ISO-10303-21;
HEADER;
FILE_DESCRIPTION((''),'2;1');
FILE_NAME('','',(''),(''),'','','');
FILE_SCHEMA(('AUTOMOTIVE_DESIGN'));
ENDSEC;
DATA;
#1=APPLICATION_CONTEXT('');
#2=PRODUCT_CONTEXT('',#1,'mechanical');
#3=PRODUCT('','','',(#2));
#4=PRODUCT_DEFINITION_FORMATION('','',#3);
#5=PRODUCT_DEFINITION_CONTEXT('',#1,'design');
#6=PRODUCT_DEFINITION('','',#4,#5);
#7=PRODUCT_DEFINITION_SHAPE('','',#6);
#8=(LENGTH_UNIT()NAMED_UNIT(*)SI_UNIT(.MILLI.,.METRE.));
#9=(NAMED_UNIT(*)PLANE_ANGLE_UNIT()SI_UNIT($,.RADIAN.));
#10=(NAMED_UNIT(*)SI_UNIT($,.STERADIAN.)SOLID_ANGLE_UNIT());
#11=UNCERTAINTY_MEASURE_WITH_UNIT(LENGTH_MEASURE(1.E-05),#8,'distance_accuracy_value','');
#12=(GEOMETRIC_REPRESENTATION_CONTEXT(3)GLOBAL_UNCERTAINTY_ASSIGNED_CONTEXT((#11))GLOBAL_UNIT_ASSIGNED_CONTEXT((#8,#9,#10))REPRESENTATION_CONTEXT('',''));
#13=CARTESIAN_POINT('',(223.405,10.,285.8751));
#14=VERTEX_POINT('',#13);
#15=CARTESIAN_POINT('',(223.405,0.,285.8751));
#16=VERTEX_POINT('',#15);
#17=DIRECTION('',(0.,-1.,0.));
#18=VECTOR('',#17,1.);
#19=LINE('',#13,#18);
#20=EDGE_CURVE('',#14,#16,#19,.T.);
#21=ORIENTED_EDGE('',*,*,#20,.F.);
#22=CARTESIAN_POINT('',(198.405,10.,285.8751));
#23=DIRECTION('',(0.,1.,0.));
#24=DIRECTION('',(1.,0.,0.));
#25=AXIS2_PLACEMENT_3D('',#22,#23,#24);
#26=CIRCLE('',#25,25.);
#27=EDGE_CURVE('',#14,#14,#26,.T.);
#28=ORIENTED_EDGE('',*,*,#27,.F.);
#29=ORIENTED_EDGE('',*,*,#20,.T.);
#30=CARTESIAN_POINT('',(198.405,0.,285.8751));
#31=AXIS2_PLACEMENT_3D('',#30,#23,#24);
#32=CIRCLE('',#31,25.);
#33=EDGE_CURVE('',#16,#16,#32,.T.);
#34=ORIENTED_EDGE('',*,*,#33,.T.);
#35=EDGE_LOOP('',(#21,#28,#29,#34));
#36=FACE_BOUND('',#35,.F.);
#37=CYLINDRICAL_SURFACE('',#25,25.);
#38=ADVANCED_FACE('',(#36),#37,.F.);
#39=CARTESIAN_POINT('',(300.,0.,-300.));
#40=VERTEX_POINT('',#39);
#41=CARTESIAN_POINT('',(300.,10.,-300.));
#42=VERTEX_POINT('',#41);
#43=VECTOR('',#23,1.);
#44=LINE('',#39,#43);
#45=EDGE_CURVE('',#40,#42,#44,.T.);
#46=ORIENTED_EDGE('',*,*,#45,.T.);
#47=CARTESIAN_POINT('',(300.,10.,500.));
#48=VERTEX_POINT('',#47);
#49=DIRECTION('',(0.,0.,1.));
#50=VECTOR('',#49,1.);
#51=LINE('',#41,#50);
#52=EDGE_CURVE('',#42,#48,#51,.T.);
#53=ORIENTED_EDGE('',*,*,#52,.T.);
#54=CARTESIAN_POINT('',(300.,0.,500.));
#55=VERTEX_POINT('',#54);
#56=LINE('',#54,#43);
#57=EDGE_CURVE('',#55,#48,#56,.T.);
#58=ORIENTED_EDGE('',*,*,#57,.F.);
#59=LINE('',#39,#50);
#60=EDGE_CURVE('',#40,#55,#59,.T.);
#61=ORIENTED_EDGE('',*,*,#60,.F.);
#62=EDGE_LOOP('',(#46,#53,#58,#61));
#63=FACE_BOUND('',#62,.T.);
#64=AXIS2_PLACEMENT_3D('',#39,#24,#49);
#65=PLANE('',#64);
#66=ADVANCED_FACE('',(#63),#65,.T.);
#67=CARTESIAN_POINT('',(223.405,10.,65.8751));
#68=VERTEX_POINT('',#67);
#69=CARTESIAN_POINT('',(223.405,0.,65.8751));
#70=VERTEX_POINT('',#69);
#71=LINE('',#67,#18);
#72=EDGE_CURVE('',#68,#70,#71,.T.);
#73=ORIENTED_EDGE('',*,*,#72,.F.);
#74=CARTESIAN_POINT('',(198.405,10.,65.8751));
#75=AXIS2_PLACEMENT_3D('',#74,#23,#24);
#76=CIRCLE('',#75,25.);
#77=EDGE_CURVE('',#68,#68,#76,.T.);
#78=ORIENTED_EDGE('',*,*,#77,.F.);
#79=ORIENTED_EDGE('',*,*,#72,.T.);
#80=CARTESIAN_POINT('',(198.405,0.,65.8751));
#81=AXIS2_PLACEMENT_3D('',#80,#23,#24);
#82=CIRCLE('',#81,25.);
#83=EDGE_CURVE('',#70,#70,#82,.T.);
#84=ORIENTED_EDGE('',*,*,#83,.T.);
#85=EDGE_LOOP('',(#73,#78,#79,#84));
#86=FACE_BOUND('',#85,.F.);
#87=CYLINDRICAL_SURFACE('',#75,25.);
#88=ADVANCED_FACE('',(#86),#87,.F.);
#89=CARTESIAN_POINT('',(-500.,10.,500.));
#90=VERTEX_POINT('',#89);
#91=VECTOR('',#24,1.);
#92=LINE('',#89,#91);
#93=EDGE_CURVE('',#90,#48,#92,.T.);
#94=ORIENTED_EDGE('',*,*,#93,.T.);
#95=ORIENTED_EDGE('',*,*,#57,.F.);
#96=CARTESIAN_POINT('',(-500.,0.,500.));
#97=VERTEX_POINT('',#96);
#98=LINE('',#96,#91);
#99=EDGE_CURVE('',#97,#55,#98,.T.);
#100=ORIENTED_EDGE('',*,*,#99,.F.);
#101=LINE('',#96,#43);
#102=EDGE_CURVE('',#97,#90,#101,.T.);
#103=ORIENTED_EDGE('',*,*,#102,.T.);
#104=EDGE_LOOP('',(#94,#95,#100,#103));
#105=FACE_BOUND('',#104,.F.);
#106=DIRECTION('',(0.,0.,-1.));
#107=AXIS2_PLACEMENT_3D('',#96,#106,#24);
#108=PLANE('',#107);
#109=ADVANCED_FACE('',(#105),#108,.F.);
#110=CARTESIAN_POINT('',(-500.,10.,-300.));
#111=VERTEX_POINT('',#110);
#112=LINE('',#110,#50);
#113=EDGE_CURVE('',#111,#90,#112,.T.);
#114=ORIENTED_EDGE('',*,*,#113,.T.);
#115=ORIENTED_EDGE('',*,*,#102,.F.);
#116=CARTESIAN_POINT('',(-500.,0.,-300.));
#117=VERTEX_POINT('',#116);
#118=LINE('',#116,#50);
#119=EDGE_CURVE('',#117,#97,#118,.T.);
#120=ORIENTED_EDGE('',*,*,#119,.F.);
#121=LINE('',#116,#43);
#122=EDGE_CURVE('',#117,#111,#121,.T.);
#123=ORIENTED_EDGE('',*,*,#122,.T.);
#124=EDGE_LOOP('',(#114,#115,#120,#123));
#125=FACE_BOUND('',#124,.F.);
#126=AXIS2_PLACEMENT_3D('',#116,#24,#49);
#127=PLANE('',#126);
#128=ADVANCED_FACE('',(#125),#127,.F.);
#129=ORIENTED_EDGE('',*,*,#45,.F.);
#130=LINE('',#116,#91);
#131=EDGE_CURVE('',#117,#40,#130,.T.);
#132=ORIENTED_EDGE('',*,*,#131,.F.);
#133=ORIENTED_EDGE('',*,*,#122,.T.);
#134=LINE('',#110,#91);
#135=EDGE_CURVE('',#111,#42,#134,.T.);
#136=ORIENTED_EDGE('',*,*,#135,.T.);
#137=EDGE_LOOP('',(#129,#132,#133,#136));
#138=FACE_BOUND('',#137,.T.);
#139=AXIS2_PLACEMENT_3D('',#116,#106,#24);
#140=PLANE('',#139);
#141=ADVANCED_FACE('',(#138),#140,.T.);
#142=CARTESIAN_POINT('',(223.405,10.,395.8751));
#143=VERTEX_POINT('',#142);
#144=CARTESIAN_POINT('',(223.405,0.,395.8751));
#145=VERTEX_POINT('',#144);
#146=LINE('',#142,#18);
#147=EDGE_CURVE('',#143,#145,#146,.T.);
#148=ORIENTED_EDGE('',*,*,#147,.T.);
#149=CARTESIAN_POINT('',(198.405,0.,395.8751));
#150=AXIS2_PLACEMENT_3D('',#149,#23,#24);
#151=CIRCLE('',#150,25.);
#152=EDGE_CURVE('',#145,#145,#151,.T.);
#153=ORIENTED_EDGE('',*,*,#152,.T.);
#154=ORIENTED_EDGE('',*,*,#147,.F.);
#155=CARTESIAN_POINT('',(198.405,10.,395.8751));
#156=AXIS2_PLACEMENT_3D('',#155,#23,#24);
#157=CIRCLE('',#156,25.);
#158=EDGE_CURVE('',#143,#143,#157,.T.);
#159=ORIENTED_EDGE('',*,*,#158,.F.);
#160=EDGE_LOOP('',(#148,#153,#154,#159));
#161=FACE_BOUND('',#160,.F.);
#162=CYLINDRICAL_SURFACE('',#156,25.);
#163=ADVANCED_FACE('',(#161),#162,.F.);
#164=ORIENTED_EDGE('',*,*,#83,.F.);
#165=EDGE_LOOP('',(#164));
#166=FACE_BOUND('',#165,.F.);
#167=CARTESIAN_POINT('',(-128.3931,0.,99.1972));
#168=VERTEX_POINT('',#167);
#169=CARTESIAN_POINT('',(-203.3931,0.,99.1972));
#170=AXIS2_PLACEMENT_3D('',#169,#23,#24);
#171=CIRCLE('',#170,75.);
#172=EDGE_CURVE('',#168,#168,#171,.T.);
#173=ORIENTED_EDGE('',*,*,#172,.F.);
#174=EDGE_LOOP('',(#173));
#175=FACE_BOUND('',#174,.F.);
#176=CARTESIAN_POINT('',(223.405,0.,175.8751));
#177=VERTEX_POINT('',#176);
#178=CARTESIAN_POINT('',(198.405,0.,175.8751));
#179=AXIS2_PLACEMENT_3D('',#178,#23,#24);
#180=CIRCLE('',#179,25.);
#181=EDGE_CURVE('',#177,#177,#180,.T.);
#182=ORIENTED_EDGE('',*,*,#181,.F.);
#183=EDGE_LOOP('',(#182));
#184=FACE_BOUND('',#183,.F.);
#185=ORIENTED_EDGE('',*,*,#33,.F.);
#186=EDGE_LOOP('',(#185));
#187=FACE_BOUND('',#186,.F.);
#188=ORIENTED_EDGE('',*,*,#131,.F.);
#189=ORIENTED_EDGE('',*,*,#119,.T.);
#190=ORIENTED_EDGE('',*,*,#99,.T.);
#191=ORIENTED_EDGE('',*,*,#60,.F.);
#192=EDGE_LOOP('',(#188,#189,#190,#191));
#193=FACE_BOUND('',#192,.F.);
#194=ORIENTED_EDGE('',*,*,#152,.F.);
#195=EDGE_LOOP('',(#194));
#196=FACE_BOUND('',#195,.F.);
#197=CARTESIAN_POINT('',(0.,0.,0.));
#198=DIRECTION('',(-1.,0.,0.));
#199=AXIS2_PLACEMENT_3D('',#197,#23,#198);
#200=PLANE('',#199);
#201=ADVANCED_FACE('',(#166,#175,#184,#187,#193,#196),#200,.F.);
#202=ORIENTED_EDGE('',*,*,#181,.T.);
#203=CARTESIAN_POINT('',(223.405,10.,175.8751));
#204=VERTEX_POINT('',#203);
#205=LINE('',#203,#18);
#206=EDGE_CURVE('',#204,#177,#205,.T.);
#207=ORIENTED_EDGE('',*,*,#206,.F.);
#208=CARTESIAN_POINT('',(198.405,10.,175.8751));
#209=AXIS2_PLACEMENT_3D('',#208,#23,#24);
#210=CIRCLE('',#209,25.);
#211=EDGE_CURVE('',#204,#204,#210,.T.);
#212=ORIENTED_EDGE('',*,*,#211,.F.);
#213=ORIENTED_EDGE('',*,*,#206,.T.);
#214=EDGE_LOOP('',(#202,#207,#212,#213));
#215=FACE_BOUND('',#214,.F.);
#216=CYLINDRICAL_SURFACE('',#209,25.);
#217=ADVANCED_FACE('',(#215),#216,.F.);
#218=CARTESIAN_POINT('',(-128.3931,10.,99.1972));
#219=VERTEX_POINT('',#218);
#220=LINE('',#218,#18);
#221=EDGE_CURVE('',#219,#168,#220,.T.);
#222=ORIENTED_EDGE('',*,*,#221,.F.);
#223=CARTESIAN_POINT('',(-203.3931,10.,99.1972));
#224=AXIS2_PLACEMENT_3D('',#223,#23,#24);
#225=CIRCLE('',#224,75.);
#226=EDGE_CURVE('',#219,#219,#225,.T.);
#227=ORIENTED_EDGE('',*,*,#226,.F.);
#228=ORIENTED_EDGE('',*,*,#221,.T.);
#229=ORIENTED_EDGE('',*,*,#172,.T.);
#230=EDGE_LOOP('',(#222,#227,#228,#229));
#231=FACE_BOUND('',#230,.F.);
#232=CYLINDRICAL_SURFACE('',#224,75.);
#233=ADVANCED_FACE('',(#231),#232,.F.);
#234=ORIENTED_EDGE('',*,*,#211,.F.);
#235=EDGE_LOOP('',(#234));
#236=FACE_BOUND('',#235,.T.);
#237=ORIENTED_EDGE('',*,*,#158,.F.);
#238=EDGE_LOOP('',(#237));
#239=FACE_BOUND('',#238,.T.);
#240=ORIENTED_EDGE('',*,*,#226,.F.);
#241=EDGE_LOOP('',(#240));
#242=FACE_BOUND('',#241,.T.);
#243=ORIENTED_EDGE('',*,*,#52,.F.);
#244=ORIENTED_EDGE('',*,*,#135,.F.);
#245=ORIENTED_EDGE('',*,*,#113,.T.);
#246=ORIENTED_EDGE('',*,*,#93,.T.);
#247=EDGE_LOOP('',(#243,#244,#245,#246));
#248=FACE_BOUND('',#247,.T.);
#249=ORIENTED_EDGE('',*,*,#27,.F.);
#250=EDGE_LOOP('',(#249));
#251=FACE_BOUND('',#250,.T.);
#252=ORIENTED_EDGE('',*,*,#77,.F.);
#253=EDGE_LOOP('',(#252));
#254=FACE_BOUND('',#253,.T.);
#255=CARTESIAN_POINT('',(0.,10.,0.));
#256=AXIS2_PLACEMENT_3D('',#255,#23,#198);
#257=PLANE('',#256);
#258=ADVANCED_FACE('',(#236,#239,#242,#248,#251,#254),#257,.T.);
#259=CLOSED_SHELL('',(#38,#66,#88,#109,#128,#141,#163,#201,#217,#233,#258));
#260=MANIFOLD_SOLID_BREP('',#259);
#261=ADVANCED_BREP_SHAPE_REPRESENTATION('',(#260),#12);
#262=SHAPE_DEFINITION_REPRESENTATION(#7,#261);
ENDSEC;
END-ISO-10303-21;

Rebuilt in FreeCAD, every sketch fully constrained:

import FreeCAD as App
import Part
import Sketcher

V = App.Vector
Q = App.Units.Quantity


def add_polygon(sketch, points):
    """Adds a closed chain of lines whose ends are joined by coincident constraints."""
    first, n = sketch.GeometryCount, len(points)
    for a, b in zip(points, points[1:] + points[:1]):
        sketch.addGeometry(Part.LineSegment(App.Vector(*a, 0), App.Vector(*b, 0)), False)
    for i in range(n):
        sketch.addConstraint(Sketcher.Constraint("Coincident", first + i, 2, first + (i + 1) % n, 1))

doc = App.newDocument("Part")
body = doc.addObject("PartDesign::Body", "Body")

sketch1 = body.newObject("Sketcher::SketchObject", "Sketch")
sketch1.AttachmentSupport = (doc.getObject("XZ_Plane"), [""])
sketch1.MapMode = "FlatFace"
add_polygon(sketch1, [(300, -300), (-500, -300), (-500, 500), (300, 500)])
sketch1.addConstraint([
    Sketcher.Constraint("Horizontal", 0),
    Sketcher.Constraint("Vertical", 1),
    Sketcher.Constraint("Horizontal", 2),
    Sketcher.Constraint("Vertical", 3),
    Sketcher.Constraint("Equal", 2, 1),
    Sketcher.Constraint("DistanceX", 0, 2, 0, 1, Q("800 mm")),
    Sketcher.Constraint("DistanceX", 0, 2, -1, 1, Q("500 mm")),
    Sketcher.Constraint("DistanceY", 0, 2, -1, 1, Q("300 mm")),
])
pad1 = body.newObject("PartDesign::Pad", "Pad")
pad1.Profile = sketch1
pad1.Length = 10
pad1.Reversed = True

sketch2 = body.newObject("Sketcher::SketchObject", "Sketch001")
sketch2.AttachmentSupport = (doc.getObject("XZ_Plane"), [""])
sketch2.MapMode = "FlatFace"
sketch2.AttachmentOffset = App.Placement(V(0, 0, -10), App.Rotation())
sketch2.addGeometry(Part.Circle(V(-203, 99, 0), V(0, 0, 1), 75), False)
sketch2.addConstraint([
    Sketcher.Constraint("Diameter", 0, Q("150 mm")),
    Sketcher.Constraint("DistanceX", 0, 3, -1, 1, Q("203.393 mm")),
    Sketcher.Constraint("DistanceY", -1, 1, 0, 3, Q("99.1972 mm")),
])
pocket1 = body.newObject("PartDesign::Pocket", "Pocket")
pocket1.Profile = sketch2
pocket1.Length = 754.25
pocket1.Reversed = True

sketch3 = body.newObject("Sketcher::SketchObject", "Sketch002")
sketch3.AttachmentSupport = (doc.getObject("XZ_Plane"), [""])
sketch3.MapMode = "FlatFace"
sketch3.AttachmentOffset = App.Placement(V(0, 0, -10), App.Rotation())
sketch3.addGeometry([
    Part.Circle(V(198, 396, 0), V(0, 0, 1), 25),
    Part.Circle(V(198, 286, 0), V(0, 0, 1), 25),
    Part.Circle(V(198, 66, 0), V(0, 0, 1), 25),
    Part.Circle(V(198, 176, 0), V(0, 0, 1), 25),
], False)
sketch3.addConstraint([
    Sketcher.Constraint("Equal", 0, 1),
    Sketcher.Constraint("Equal", 1, 2),
    Sketcher.Constraint("Equal", 2, 3),
    Sketcher.Constraint("Vertical", 0, 3, 1, 3),
    Sketcher.Constraint("Vertical", 1, 3, 2, 3),
    Sketcher.Constraint("Vertical", 2, 3, 3, 3),
    Sketcher.Constraint("Diameter", 0, Q("50 mm")),
    Sketcher.Constraint("DistanceY", 1, 3, 0, 3, Q("110 mm")),
    Sketcher.Constraint("DistanceY", 3, 3, 1, 3, Q("110 mm")),
    Sketcher.Constraint("DistanceY", 2, 3, 3, 3, Q("110 mm")),
    Sketcher.Constraint("DistanceX", -1, 1, 0, 3, Q("198.405 mm")),
    Sketcher.Constraint("DistanceY", -1, 1, 0, 3, Q("395.875 mm")),
])
pocket2 = body.newObject("PartDesign::Pocket", "Pocket001")
pocket2.Profile = sketch3
pocket2.Length = 754.25
pocket2.Reversed = True

doc.recompute()
